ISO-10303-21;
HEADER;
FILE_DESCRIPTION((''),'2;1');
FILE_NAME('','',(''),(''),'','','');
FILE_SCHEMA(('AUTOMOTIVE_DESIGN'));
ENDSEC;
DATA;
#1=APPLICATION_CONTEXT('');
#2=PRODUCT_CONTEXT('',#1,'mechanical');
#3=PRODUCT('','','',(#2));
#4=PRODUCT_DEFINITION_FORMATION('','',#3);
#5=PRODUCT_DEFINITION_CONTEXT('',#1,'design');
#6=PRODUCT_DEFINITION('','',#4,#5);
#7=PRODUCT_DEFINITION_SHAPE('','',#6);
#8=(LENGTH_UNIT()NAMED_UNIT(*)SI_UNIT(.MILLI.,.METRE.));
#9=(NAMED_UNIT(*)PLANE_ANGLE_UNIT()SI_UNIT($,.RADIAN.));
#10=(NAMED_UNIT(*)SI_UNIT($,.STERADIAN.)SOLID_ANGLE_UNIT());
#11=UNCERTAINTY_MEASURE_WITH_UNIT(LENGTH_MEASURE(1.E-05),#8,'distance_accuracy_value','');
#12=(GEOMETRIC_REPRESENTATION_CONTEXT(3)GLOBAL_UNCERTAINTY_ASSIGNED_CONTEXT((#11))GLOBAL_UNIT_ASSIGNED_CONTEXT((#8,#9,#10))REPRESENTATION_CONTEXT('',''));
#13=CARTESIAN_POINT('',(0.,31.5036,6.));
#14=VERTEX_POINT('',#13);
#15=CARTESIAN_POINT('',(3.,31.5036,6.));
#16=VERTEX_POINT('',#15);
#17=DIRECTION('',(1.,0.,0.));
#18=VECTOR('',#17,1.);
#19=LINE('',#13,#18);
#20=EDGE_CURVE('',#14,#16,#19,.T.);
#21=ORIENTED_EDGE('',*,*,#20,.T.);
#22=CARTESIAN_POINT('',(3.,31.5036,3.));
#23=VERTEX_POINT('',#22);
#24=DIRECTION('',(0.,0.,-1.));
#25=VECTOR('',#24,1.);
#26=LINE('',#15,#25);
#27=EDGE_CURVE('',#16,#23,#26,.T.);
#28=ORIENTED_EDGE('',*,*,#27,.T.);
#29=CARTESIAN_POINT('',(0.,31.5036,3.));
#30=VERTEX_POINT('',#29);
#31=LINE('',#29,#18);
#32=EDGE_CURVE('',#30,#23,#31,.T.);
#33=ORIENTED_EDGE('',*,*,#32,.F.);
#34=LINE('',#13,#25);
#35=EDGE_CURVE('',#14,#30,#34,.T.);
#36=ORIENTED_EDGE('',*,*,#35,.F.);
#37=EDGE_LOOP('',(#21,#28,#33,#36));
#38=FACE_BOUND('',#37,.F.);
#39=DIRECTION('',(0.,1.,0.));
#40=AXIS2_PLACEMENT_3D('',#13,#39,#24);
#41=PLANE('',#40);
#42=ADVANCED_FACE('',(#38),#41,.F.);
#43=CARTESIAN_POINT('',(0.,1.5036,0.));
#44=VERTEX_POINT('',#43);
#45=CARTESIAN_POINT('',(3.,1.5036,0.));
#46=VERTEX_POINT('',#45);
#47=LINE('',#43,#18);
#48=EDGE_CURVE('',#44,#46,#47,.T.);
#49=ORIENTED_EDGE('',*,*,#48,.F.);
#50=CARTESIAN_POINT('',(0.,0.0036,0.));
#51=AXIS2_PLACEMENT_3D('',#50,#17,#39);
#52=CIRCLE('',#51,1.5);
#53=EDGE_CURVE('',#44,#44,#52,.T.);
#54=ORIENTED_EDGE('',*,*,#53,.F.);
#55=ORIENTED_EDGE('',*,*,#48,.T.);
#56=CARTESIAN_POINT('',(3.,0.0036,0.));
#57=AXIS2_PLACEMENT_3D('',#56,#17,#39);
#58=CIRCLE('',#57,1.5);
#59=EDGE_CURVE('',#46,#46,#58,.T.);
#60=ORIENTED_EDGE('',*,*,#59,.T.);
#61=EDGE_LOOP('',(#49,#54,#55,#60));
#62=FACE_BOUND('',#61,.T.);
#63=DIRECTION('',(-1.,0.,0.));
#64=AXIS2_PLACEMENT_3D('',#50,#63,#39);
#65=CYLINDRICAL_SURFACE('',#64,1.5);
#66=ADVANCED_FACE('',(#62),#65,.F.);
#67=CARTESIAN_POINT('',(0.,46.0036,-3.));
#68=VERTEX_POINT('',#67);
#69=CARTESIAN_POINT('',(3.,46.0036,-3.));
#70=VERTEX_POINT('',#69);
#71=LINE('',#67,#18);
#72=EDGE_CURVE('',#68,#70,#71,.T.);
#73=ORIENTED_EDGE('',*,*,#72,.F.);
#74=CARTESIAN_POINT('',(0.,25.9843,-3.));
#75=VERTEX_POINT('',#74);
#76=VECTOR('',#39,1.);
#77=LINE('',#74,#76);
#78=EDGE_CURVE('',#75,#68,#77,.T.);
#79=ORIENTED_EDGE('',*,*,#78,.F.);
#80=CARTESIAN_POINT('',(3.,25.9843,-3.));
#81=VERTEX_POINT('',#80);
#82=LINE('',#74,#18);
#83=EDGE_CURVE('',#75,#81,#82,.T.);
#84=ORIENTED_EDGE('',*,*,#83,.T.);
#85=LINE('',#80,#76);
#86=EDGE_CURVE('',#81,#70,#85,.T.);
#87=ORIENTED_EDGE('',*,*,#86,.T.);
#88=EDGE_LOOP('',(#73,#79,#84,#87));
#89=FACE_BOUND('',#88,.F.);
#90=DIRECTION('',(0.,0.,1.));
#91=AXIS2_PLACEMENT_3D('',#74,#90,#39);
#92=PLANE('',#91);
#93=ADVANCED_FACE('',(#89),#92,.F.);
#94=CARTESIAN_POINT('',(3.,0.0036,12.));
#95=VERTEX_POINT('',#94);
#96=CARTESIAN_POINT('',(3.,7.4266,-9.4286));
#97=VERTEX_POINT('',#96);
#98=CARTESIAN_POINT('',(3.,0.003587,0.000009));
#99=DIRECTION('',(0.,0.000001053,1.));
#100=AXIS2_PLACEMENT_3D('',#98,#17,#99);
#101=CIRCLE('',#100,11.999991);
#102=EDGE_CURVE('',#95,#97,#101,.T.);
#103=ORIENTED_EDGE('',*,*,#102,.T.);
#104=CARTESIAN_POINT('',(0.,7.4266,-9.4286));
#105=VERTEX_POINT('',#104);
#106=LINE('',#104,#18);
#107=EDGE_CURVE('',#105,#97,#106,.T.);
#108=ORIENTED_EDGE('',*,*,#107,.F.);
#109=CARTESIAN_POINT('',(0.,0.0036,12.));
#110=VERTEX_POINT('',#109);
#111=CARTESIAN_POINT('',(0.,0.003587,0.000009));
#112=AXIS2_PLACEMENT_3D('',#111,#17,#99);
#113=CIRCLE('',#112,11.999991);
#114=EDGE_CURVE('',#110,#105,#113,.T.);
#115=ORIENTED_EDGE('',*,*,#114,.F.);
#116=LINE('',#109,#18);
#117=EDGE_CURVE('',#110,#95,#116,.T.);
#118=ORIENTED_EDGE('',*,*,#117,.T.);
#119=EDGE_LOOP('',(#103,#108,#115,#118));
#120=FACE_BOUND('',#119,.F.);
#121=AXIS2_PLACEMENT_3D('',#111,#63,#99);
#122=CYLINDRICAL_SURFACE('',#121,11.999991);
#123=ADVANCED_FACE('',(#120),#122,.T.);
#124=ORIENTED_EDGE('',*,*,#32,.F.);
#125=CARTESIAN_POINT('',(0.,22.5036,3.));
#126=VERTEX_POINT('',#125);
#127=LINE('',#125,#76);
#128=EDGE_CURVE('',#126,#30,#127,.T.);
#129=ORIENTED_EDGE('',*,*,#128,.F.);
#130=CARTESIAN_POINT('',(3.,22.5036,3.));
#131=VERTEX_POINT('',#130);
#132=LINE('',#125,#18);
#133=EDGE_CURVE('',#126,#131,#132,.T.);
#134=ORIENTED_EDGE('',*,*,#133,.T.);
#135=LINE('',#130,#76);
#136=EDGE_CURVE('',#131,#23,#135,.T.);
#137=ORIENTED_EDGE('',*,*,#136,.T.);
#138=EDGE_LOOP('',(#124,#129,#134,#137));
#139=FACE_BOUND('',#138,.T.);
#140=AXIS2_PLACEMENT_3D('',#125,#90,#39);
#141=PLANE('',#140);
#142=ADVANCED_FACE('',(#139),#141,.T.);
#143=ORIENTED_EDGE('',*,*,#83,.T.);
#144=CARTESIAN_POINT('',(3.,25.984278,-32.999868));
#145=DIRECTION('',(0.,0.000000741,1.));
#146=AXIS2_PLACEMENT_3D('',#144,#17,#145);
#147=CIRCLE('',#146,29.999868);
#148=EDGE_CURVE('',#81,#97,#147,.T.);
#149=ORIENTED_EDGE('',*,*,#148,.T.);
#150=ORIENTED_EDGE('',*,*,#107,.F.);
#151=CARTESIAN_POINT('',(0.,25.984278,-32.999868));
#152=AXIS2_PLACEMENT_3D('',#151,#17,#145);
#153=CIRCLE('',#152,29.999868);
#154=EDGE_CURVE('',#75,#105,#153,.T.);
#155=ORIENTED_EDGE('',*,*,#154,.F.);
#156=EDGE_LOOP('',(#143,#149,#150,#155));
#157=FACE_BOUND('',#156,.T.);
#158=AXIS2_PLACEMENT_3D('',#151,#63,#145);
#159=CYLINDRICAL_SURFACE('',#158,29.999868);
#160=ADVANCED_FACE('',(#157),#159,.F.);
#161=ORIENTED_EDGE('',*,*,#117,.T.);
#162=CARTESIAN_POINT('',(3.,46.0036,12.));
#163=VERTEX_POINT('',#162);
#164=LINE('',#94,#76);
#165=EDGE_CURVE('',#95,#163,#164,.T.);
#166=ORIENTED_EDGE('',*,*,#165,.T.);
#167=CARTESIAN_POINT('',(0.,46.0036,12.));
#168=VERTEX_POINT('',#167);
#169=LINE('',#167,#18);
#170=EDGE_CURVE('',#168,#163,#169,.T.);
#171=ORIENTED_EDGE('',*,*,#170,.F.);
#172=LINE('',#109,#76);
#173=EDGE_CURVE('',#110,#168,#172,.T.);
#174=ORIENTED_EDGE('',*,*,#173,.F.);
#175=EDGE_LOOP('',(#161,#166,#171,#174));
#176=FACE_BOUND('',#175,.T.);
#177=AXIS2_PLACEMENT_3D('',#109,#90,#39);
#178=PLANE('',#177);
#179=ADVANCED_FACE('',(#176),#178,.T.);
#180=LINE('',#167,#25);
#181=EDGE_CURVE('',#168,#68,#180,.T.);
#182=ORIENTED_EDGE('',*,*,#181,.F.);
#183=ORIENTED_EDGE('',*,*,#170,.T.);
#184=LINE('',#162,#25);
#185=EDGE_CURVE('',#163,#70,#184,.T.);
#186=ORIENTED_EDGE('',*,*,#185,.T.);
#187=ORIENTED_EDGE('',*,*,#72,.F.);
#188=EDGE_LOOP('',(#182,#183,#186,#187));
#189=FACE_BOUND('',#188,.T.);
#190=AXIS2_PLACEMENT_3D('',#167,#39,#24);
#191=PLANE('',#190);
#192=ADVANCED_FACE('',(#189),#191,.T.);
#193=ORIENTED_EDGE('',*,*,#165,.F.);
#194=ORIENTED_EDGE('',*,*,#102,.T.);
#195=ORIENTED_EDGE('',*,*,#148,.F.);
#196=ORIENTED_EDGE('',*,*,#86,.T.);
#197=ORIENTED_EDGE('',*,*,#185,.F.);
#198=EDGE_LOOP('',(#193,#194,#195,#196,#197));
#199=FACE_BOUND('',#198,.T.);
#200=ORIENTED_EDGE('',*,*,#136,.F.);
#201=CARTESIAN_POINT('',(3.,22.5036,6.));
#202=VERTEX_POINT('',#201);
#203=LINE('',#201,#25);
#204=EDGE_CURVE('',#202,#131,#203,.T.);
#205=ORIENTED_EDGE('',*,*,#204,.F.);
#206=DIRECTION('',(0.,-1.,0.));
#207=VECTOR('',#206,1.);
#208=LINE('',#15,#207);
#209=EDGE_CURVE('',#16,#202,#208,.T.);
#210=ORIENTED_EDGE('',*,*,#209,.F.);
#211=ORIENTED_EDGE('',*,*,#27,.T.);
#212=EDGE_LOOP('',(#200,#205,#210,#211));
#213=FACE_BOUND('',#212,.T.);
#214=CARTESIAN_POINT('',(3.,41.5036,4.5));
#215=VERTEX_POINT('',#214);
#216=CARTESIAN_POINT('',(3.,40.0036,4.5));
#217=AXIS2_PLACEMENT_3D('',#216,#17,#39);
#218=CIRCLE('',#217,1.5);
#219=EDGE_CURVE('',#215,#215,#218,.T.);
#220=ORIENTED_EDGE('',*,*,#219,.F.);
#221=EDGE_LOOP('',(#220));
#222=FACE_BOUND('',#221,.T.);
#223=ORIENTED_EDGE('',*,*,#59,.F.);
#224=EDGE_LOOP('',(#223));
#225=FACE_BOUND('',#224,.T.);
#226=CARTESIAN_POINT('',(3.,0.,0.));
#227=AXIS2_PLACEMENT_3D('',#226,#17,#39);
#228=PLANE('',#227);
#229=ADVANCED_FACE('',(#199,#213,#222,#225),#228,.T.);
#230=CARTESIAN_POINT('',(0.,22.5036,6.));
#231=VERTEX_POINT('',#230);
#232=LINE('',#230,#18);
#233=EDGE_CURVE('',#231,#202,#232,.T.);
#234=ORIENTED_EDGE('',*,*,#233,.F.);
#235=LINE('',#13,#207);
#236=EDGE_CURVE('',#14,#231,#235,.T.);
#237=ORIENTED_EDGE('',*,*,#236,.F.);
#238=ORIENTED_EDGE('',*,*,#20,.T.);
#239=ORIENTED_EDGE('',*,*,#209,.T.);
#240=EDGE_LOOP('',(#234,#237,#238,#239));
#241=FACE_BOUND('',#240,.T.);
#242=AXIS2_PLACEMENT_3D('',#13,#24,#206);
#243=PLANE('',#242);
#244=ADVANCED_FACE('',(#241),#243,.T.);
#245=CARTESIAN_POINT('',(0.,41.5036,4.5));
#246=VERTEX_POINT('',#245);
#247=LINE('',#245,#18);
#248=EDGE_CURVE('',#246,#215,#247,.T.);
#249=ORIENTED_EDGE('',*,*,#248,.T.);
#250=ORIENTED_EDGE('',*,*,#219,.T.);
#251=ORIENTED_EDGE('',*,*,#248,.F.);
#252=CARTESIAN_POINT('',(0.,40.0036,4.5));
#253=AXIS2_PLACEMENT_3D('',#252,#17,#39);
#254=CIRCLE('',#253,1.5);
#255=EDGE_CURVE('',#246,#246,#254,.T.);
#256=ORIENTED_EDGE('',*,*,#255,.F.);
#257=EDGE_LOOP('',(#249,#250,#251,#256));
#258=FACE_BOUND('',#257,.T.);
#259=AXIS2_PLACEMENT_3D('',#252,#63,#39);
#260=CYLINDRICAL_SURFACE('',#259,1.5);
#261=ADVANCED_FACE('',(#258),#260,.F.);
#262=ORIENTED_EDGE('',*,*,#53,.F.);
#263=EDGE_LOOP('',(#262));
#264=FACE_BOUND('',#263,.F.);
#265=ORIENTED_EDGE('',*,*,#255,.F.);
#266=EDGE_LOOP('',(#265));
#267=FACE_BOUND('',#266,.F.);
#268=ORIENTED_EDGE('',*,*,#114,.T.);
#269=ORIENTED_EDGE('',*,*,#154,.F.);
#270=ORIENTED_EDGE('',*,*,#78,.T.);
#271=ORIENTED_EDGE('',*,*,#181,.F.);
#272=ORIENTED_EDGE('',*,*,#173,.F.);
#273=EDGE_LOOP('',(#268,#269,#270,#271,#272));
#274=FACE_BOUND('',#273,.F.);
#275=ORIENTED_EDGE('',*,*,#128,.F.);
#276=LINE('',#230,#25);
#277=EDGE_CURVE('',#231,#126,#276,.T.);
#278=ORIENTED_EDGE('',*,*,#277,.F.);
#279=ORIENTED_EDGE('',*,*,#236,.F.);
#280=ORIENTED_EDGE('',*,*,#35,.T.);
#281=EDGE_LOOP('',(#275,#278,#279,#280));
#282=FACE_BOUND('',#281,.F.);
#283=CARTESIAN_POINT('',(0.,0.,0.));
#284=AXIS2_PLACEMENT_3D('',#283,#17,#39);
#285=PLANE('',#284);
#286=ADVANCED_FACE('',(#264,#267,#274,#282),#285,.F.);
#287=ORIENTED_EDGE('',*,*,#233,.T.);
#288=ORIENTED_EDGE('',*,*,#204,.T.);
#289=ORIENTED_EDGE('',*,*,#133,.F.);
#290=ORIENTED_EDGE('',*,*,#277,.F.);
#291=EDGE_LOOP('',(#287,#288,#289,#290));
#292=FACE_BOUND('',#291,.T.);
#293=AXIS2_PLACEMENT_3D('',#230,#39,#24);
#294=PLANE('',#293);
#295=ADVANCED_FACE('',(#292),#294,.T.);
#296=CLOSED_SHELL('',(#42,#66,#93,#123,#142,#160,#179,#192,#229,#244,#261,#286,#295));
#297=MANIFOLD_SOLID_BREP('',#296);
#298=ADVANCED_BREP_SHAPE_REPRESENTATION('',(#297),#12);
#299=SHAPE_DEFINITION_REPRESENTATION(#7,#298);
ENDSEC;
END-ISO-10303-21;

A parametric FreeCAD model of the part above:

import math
import FreeCAD as App
import Part
import Sketcher
from FreeCAD import Vector
Q = App.Units.Quantity


def add_polygon(sketch, points):
    """Adds a closed chain of lines whose ends are joined by coincident constraints."""
    first, n = sketch.GeometryCount, len(points)
    for a, b in zip(points, points[1:] + points[:1]):
        sketch.addGeometry(Part.LineSegment(App.Vector(*a, 0), App.Vector(*b, 0)), False)
    for i in range(n):
        sketch.addConstraint(Sketcher.Constraint("Coincident", first + i, 2, first + (i + 1) % n, 1))

doc = App.newDocument("Part")
body = doc.addObject("PartDesign::Body", "Body")

sketch1 = body.newObject("Sketcher::SketchObject", "Sketch")
sketch1.AttachmentSupport = (doc.getObject("YZ_Plane"), [""])
sketch1.MapMode = "FlatFace"
sketch1.addGeometry(Part.LineSegment(Vector(46, 12, 0), Vector(0, 12, 0)), False)
sketch1.addGeometry(Part.ArcOfCircle(Part.Circle(Vector(0, 0, 0), Vector(0, 0, 1), 12), math.radians(90), math.radians(308)), False)
sketch1.addGeometry(Part.ArcOfCircle(Part.Circle(Vector(26, -33, 0), Vector(0, 0, 1), 30), math.radians(90), math.radians(128)), False)
sketch1.addGeometry(Part.LineSegment(Vector(26, -3, 0), Vector(46, -3, 0)), False)
sketch1.addGeometry(Part.LineSegment(Vector(46, -3, 0), Vector(46, 12, 0)), False)
sketch1.addGeometry(Part.Circle(Vector(0, 0, 0), Vector(0, 0, 1), 1.5), False)
add_polygon(sketch1, [(22.5, 6), (31.5, 6), (31.5, 3), (22.5, 3)])
sketch1.addGeometry(Part.Circle(Vector(40, 4.5, 0), Vector(0, 0, 1), 1.5), False)
sketch1.addConstraint([
    Sketcher.Constraint("Tangent", 0, 2, 1, 1),
    Sketcher.Constraint("Tangent", 1, 2, 2, 2),
    Sketcher.Constraint("Tangent", 2, 1, 3, 1),
    Sketcher.Constraint("Coincident", 3, 2, 4, 1),
    Sketcher.Constraint("Coincident", 4, 2, 0, 1),
    Sketcher.Constraint("Horizontal", 0),
    Sketcher.Constraint("Horizontal", 3),
    Sketcher.Constraint("Vertical", 4),
    Sketcher.Constraint("Horizontal", 6),
    Sketcher.Constraint("Vertical", 7),
    Sketcher.Constraint("Horizontal", 8),
    Sketcher.Constraint("Vertical", 9),
    Sketcher.Constraint("Coincident", 5, 3, 1, 3),
    Sketcher.Constraint("Equal", 5, 10),
    Sketcher.Constraint("PointOnObject", 1, 3, -1),
    Sketcher.Constraint("Diameter", 5, Q("3 mm")),
    Sketcher.Constraint("Radius", 1, Q("12 mm")),
    Sketcher.Constraint("DistanceX", 6, 1, 6, 2, Q("9 mm")),
    Sketcher.Constraint("DistanceY", 4, 1, 4, 2, Q("15 mm")),
    Sketcher.Constraint("DistanceY", 7, 2, 7, 1, Q("3 mm")),
    Sketcher.Constraint("DistanceY", -1, 1, 6, 2, Q("6 mm")),
    Sketcher.Constraint("Radius", 2, Q("30 mm")),
    Sketcher.Constraint("DistanceX", 10, 3, 3, 2, Q("6 mm")),
    Sketcher.Constraint("DistanceY", 10, 3, 0, 2, Q("7.5 mm")),
    Sketcher.Constraint("DistanceX", 6, 2, 10, 3, Q("8.5 mm")),
    Sketcher.Constraint("DistanceX", 0, 2, 0, 1, Q("46 mm")),
    Sketcher.Constraint("DistanceX", -1, 1, 1, 3, Q("0.0036 mm")),
])
pad1 = body.newObject("PartDesign::Pad", "Pad")
pad1.Profile = sketch1
pad1.Length = 3

doc.recompute()
